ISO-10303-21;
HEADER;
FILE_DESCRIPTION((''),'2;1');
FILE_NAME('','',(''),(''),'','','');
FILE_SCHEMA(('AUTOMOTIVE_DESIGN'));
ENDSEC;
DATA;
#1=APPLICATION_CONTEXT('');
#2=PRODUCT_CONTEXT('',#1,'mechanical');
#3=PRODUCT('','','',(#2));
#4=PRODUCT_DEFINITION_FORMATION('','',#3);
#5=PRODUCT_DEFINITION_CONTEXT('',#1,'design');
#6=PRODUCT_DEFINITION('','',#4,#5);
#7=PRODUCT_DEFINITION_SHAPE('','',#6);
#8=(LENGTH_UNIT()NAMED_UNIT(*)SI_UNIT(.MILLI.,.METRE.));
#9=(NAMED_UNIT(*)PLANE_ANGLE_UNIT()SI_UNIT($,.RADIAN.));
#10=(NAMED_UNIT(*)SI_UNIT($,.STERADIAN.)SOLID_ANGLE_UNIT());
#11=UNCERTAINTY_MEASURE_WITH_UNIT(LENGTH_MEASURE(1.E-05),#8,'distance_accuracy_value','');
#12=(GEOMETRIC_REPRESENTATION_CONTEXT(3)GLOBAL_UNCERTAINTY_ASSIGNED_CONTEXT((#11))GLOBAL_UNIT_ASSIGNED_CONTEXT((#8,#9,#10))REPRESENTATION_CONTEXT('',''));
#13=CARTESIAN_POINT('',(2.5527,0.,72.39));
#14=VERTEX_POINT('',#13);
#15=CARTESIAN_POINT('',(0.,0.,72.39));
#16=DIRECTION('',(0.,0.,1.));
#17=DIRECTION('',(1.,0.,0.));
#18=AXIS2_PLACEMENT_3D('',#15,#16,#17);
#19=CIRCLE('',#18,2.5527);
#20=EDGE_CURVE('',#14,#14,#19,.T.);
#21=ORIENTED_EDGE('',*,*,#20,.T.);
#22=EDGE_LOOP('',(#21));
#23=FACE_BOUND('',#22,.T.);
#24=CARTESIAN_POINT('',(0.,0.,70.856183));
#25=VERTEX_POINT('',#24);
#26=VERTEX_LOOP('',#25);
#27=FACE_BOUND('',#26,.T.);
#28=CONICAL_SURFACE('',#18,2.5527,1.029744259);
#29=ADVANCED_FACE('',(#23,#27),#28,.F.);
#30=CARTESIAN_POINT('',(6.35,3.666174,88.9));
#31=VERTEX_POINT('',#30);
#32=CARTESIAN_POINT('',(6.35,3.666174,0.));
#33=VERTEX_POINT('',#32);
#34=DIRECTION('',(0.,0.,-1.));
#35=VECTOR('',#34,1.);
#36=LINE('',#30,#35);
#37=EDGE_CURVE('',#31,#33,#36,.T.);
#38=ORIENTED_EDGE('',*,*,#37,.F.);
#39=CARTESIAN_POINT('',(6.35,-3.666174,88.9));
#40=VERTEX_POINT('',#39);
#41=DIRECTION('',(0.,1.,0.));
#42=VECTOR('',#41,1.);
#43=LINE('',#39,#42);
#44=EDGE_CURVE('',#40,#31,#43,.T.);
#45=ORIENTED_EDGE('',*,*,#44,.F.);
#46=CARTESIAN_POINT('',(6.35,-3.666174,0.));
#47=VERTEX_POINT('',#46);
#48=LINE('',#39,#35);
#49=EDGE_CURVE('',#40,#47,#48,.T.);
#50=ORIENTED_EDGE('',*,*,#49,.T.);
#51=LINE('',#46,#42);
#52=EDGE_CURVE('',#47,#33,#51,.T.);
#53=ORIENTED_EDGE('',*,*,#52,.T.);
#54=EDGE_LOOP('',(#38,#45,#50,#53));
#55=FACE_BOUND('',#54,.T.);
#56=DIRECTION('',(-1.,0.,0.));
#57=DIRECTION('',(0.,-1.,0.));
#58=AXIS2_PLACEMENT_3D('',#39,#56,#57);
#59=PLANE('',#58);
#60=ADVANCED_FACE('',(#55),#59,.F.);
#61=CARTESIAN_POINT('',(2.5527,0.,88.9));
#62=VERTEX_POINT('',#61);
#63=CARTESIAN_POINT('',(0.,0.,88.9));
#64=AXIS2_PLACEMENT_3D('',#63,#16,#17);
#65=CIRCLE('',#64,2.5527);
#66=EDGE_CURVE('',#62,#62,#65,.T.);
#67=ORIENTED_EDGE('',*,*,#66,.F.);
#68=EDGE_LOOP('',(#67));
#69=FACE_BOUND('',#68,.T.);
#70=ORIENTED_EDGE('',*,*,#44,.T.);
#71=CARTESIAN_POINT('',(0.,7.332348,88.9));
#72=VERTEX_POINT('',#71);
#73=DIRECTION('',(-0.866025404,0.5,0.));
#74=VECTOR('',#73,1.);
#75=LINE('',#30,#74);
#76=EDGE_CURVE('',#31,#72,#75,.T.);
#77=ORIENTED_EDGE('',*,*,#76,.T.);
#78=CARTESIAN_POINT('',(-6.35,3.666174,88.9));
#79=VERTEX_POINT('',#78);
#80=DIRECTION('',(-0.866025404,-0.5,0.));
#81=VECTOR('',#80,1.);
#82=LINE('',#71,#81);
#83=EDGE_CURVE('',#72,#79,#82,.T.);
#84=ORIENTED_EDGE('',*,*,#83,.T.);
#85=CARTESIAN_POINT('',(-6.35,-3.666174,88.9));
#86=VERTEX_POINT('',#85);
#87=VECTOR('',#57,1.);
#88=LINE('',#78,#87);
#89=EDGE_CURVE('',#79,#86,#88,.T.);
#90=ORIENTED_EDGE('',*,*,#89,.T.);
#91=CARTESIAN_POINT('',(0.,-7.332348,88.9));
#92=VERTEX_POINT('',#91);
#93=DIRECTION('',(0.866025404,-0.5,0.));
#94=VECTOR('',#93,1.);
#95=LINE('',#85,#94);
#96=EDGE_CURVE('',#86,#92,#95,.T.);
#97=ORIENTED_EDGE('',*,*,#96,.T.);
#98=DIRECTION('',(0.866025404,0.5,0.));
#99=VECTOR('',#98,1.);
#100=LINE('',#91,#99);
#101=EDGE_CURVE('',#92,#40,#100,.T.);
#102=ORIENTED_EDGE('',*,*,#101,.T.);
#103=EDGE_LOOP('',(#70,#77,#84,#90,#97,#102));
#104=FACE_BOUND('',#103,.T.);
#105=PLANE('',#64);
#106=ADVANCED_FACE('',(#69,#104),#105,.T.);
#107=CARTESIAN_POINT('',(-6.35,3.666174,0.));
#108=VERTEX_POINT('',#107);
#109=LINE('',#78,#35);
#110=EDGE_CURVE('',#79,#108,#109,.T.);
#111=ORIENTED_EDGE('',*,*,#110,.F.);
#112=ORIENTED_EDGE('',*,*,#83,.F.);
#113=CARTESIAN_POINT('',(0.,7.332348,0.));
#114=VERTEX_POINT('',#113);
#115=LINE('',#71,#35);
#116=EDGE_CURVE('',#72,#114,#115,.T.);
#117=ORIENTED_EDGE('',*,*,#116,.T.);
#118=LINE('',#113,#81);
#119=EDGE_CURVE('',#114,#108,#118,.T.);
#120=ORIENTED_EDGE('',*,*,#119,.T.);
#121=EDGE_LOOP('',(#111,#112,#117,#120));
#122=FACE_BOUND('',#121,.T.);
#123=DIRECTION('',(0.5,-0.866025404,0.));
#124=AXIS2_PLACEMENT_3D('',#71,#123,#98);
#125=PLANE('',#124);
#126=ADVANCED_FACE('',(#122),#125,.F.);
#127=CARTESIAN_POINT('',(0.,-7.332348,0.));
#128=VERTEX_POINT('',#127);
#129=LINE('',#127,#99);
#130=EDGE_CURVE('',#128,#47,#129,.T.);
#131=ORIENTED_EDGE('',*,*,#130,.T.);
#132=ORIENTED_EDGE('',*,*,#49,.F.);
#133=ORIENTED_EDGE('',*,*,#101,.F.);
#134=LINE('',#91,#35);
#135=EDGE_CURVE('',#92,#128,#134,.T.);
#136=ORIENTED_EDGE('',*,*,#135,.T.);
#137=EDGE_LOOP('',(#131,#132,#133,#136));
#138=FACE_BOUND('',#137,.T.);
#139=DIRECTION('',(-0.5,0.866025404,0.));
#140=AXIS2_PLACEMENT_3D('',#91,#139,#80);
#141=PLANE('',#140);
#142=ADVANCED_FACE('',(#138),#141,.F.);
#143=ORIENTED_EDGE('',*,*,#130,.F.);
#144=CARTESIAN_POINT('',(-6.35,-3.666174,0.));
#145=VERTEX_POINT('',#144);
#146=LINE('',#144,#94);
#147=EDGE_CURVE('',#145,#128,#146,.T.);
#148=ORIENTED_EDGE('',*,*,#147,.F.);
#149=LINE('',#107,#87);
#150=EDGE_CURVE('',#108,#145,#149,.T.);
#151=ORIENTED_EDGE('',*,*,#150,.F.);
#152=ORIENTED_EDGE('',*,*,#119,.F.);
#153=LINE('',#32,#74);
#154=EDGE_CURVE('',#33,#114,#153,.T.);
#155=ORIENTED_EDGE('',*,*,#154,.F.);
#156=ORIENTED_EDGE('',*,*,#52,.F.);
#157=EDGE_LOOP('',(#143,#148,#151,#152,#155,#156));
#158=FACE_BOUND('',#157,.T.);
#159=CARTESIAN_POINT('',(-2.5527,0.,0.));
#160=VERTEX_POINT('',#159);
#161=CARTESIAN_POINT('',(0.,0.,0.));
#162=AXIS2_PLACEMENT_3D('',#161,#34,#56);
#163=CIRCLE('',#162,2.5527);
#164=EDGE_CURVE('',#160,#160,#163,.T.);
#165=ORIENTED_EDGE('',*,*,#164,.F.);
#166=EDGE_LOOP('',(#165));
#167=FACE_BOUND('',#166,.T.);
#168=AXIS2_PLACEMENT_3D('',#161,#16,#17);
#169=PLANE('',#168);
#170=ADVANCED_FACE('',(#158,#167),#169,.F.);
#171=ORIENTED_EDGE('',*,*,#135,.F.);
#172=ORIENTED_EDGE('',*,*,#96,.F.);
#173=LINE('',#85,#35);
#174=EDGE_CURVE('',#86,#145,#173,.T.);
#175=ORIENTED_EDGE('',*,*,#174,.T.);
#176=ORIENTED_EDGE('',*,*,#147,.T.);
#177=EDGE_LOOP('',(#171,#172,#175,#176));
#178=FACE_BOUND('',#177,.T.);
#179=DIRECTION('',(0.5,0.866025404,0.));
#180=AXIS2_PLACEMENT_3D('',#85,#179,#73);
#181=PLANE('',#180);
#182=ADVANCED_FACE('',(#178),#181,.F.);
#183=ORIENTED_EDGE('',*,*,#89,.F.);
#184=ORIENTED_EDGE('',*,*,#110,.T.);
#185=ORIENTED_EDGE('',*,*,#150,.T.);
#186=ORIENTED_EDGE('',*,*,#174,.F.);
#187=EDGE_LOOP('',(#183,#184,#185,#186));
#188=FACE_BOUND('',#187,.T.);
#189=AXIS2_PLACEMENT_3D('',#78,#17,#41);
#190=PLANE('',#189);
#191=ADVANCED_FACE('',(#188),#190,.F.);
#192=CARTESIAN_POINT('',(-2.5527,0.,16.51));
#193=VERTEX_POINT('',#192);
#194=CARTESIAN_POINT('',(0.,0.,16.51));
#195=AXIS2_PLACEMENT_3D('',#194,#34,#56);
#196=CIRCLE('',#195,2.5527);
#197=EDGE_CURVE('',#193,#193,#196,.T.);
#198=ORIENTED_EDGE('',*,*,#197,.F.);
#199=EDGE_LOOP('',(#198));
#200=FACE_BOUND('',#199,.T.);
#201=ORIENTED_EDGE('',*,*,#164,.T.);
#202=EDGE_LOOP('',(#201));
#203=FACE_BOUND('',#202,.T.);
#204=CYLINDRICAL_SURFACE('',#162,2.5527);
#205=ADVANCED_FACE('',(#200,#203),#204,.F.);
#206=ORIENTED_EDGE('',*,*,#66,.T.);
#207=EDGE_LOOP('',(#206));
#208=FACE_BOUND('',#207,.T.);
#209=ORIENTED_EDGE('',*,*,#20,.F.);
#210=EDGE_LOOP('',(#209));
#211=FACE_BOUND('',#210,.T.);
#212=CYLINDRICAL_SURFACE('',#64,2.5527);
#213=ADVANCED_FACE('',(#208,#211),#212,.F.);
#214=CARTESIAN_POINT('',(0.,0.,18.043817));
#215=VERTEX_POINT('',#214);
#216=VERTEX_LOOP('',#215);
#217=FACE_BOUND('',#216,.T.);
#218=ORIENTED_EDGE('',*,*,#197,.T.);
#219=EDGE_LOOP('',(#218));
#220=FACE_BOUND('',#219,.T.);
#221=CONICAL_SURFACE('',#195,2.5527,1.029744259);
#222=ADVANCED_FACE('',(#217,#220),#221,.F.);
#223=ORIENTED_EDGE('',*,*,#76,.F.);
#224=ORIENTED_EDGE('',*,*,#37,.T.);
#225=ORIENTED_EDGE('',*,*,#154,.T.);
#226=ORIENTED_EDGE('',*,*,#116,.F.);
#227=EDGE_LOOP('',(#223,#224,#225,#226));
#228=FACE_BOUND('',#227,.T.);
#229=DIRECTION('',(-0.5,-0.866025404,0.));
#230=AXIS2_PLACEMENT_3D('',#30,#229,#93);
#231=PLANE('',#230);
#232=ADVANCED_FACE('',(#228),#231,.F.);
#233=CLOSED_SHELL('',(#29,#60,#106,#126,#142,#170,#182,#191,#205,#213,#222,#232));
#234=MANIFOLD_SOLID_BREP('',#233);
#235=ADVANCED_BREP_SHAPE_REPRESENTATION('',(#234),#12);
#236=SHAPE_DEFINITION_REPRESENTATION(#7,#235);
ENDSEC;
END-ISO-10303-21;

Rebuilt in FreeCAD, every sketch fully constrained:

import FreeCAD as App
import Part
import Sketcher
Q = App.Units.Quantity


def add_polygon(sketch, points):
    """Adds a closed chain of lines whose ends are joined by coincident constraints."""
    first, n = sketch.GeometryCount, len(points)
    for a, b in zip(points, points[1:] + points[:1]):
        sketch.addGeometry(Part.LineSegment(App.Vector(*a, 0), App.Vector(*b, 0)), False)
    for i in range(n):
        sketch.addConstraint(Sketcher.Constraint("Coincident", first + i, 2, first + (i + 1) % n, 1))

doc = App.newDocument("Part")
body = doc.addObject("PartDesign::Body", "Body")

# Sketch on XY plane
sketch1 = body.newObject("Sketcher::SketchObject", "Sketch")
sketch1.AttachmentSupport = (doc.getObject("XY_Plane"), [""])
sketch1.MapMode = "FlatFace"
add_polygon(sketch1, [(6.35, 3.666174), (0, 7.332348), (-6.35, 3.666174), (-6.35, -3.666174), (0, -7.332348), (6.35, -3.666174)])  # lines 0-5
sketch1.addConstraint([
    Sketcher.Constraint("Vertical", 2),
    Sketcher.Constraint("Vertical", 5),
    Sketcher.Constraint("Symmetric", 0, 2, 3, 2, -1, 1),
    Sketcher.Constraint("Symmetric", 1, 2, 4, 2, -1, 1),
    Sketcher.Constraint("PointOnObject", 0, 2, -2),
    Sketcher.Constraint("Parallel", 0, 3),
    Sketcher.Constraint("Horizontal", 2, 2, 4, 2),
    Sketcher.Constraint("Angle", 0, Q("150 deg")),
    Sketcher.Constraint("DistanceX", 2, 2, 4, 2, Q("0.5 in")),
    Sketcher.Constraint("DistanceY", 2, 2, 2, 1, 7.332348),
])
pad1 = body.newObject("PartDesign::Pad", "Pad")
pad1.Profile = sketch1
pad1.Length = Q("3.5 in")

# Sketch on XY plane
sketch2 = body.newObject("Sketcher::SketchObject", "Sketch001")
sketch2.AttachmentSupport = (doc.getObject("XY_Plane"), [""])
sketch2.MapMode = "FlatFace"
sketch2.AttachmentOffset = App.Placement(App.Vector(0, 0, 3.5 * 25.4), App.Rotation())
sketch2.addGeometry(Part.Circle(App.Vector(0, 0, 0), App.Vector(0, 0, 1), 2.5527), False)
sketch2.addConstraint([
    Sketcher.Constraint("Coincident", 0, 3, -1, 1),
    Sketcher.Constraint("Diameter", 0, Q("0.201 in")),
])
doc.recompute()
hole = body.newObject("PartDesign::Hole", "Hole")
hole.Profile = sketch2
hole.ThreadType = "None"
hole.Diameter = Q("0.201 in")
hole.DepthType = "Dimension"
hole.Depth = Q("0.65 in")
hole.DrillPoint = "Angled"
hole.DrillPointAngle = 118

# Sketch on XY plane
sketch3 = body.newObject("Sketcher::SketchObject", "Sketch002")
sketch3.AttachmentSupport = (doc.getObject("XY_Plane"), [""])
sketch3.MapMode = "FlatFace"
sketch3.addGeometry(Part.Circle(App.Vector(0, 0, 0), App.Vector(0, 0, 1), 2.5527), False)
sketch3.addConstraint([
    Sketcher.Constraint("Coincident", 0, 3, -1, 1),
    Sketcher.Constraint("Diameter", 0, Q("0.201 in")),
])
doc.recompute()
hole2 = body.newObject("PartDesign::Hole", "Hole001")
hole2.Profile = sketch3
hole2.ThreadType = "None"
hole2.Diameter = Q("0.201 in")
hole2.DepthType = "Dimension"
hole2.Depth = Q("0.65 in")
hole2.DrillPoint = "Angled"
hole2.DrillPointAngle = 118
hole2.Reversed = True

doc.recompute()
